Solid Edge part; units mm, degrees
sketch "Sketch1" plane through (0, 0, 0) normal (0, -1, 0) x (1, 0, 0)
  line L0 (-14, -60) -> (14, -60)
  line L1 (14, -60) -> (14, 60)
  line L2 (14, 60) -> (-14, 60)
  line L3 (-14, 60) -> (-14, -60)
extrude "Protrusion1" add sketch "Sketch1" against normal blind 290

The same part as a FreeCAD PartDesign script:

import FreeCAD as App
import Part
import Sketcher

doc = App.newDocument("Part")
body = doc.addObject("PartDesign::Body", "Body")

sketch1 = body.newObject("Sketcher::SketchObject", "Sketch")
sketch1.AttachmentSupport = (doc.getObject("XZ_Plane"), [""])
sketch1.MapMode = "FlatFace"
sketch1.addGeometry([
    Part.LineSegment(App.Vector(-14, 60, 0), App.Vector(-14, -60, 0)),
    Part.LineSegment(App.Vector(-14, -60, 0), App.Vector(14, -60, 0)),
    Part.LineSegment(App.Vector(14, -60, 0), App.Vector(14, 60, 0)),
    Part.LineSegment(App.Vector(14, 60, 0), App.Vector(-14, 60, 0)),
], False)
sketch1.addConstraint([
    Sketcher.Constraint("Coincident", 0, 2, 1, 1),
    Sketcher.Constraint("Coincident", 1, 2, 2, 1),
    Sketcher.Constraint("Coincident", 2, 2, 3, 1),
    Sketcher.Constraint("Coincident", 3, 2, 0, 1),
    Sketcher.Constraint("Vertical", 0),
    Sketcher.Constraint("Horizontal", 1),
    Sketcher.Constraint("Vertical", 2),
    Sketcher.Constraint("Horizontal", 3),
    Sketcher.Constraint("Symmetric", 0, 2, 2, 2, -1, 1),
    Sketcher.Constraint("DistanceX", 1, 1, 1, 2, 28.0),
    Sketcher.Constraint("DistanceY", 0, 2, 0, 1, 120.0),
])
pad1 = body.newObject("PartDesign::Pad", "Pad")
pad1.Profile = sketch1
pad1.Length = 290
pad1.Reversed = True

doc.recompute()
